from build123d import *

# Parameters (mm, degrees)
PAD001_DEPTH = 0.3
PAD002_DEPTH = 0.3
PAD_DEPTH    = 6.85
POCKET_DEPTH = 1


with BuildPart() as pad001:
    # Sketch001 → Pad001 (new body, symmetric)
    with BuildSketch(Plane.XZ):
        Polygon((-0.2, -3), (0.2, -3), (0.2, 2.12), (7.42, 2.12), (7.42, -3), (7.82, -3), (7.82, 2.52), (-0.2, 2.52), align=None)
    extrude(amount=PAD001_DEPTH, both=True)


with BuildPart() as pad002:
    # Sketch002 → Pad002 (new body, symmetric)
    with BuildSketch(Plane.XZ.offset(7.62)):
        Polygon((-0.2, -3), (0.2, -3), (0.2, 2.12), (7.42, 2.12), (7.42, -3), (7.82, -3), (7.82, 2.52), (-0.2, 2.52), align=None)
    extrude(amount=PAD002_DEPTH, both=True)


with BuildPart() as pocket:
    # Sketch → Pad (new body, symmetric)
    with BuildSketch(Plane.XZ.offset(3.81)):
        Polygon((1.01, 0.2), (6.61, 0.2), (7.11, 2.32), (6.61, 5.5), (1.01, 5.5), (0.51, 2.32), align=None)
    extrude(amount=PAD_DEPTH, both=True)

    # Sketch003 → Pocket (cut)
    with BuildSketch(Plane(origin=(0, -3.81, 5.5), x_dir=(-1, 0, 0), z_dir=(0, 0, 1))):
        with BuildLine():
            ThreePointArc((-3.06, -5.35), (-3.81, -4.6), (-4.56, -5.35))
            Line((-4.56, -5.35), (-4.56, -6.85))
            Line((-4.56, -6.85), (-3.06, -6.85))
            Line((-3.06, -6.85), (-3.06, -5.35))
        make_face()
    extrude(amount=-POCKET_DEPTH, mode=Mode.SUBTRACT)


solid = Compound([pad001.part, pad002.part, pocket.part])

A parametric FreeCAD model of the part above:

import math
import FreeCAD as App
import Part
import Sketcher


def add_polygon(sketch, points):
    """Adds a closed chain of lines whose ends are joined by coincident constraints."""
    first, n = sketch.GeometryCount, len(points)
    for a, b in zip(points, points[1:] + points[:1]):
        sketch.addGeometry(Part.LineSegment(App.Vector(*a, 0), App.Vector(*b, 0)), False)
    for i in range(n):
        sketch.addConstraint(Sketcher.Constraint("Coincident", first + i, 2, first + (i + 1) % n, 1))

doc = App.newDocument("Part")
body = doc.addObject("PartDesign::Body", "Body")

# Sketch on XZ plane
sketch1 = doc.addObject("Sketcher::SketchObject", "Sketch")
body.addObject(sketch1)
sketch1.AttachmentSupport = (doc.XZ_Plane, [""])
sketch1.MapMode = "FlatFace"
add_polygon(sketch1, [(-0.2, -3), (0.2, -3), (0.2, 2.12), (7.42, 2.12), (7.42, -3), (7.82, -3), (7.82, 2.52), (-0.2, 2.52)])  # lines 0-7
sketch1.addConstraint([
    Sketcher.Constraint("Horizontal", 0),
    Sketcher.Constraint("Vertical", 1),
    Sketcher.Constraint("Horizontal", 2),
    Sketcher.Constraint("Vertical", 3),
    Sketcher.Constraint("Horizontal", 4),
    Sketcher.Constraint("Vertical", 5),
    Sketcher.Constraint("Horizontal", 6),
    Sketcher.Constraint("Vertical", 7),
    Sketcher.Constraint("Horizontal", 0, 2, 3, 2),
    Sketcher.Constraint("Equal", 0, 4),
    Sketcher.Constraint("DistanceX", 0, 1, 0, 2, 0.4),
    Sketcher.Constraint("DistanceY", 0, 2, -1, 1, 3.0),
    Sketcher.Constraint("DistanceX", 2, 1, 2, 2, 7.22),
    Sketcher.Constraint("DistanceY", 1, 1, 1, 2, 5.12),
    Sketcher.Constraint("DistanceY", 5, 1, 5, 2, 5.52),
    Sketcher.Constraint("DistanceX", -1, 1, 0, 2, 0.2),
])
pad1 = doc.addObject("PartDesign::Pad", "Pad")
body.addObject(pad1)
pad1.Profile = sketch1
pad1.Length = 0.6
pad1.Midplane = True
body2 = doc.addObject("PartDesign::Body", "Body001")

# Sketch on XZ plane
sketch2 = doc.addObject("Sketcher::SketchObject", "Sketch001")
body2.addObject(sketch2)
sketch2.AttachmentSupport = (doc.getObject("XZ_Plane001"), [""])
sketch2.MapMode = "FlatFace"
sketch2.AttachmentOffset = App.Placement(App.Vector(0, 0, 7.62), App.Rotation())
add_polygon(sketch2, [(-0.2, -3), (0.2, -3), (0.2, 2.12), (7.42, 2.12), (7.42, -3), (7.82, -3), (7.82, 2.52), (-0.2, 2.52)])  # lines 0-7
sketch2.addConstraint([
    Sketcher.Constraint("Horizontal", 0),
    Sketcher.Constraint("Vertical", 1),
    Sketcher.Constraint("Horizontal", 2),
    Sketcher.Constraint("Vertical", 3),
    Sketcher.Constraint("Horizontal", 4),
    Sketcher.Constraint("Vertical", 5),
    Sketcher.Constraint("Horizontal", 6),
    Sketcher.Constraint("Vertical", 7),
    Sketcher.Constraint("Horizontal", 0, 2, 3, 2),
    Sketcher.Constraint("Equal", 0, 4),
    Sketcher.Constraint("DistanceX", 0, 1, 0, 2, 0.4),
    Sketcher.Constraint("DistanceY", 0, 2, -1, 1, 3.0),
    Sketcher.Constraint("DistanceX", 2, 1, 2, 2, 7.22),
    Sketcher.Constraint("DistanceY", 1, 1, 1, 2, 5.12),
    Sketcher.Constraint("DistanceY", 5, 1, 5, 2, 5.52),
    Sketcher.Constraint("DistanceX", -1, 1, 0, 2, 0.2),
])
pad2 = doc.addObject("PartDesign::Pad", "Pad001")
body2.addObject(pad2)
pad2.Profile = sketch2
pad2.Length = 0.6
pad2.Midplane = True
body3 = doc.addObject("PartDesign::Body", "Body002")

# Sketch on XZ plane
sketch3 = doc.addObject("Sketcher::SketchObject", "Sketch002")
body3.addObject(sketch3)
sketch3.AttachmentSupport = (doc.getObject("XZ_Plane002"), [""])
sketch3.MapMode = "FlatFace"
sketch3.AttachmentOffset = App.Placement(App.Vector(0, 0, 3.81), App.Rotation())
add_polygon(sketch3, [(1, 0.2), (6.6, 0.2), (7.1, 2.3), (6.6, 5.5), (1, 5.5), (0.5, 2.3)])  # lines 0-5
sketch3.addConstraint([
    Sketcher.Constraint("Horizontal", 0),
    Sketcher.Constraint("Horizontal", 3),
    Sketcher.Constraint("Horizontal", 1, 2, 4, 2),
    Sketcher.Constraint("Vertical", 0, 2, 2, 2),
    Sketcher.Constraint("Vertical", 3, 2, 5, 2),
    Sketcher.Constraint("Equal", 2, 4),
    Sketcher.Constraint("DistanceX", 0, 1, 0, 2, 5.6),
    Sketcher.Constraint("DistanceY", -1, 1, 0, 2, 0.2),
    Sketcher.Constraint("DistanceY", -1, 1, 2, 2, 5.5),
    Sketcher.Constraint("DistanceX", 0, 2, 1, 2, 0.5),
    Sketcher.Constraint("DistanceX", -1, 1, 0, 2, 6.61),
    Sketcher.Constraint("DistanceY", -1, 1, 1, 2, 2.32),
])
pad3 = doc.addObject("PartDesign::Pad", "Pad002")
body3.addObject(pad3)
pad3.Profile = sketch3
pad3.Length = 13.7
pad3.Midplane = True

# Sketch on XY plane
sketch4 = doc.addObject("Sketcher::SketchObject", "Sketch003")
body3.addObject(sketch4)
sketch4.AttachmentSupport = (doc.getObject("XY_Plane002"), [""])
sketch4.MapMode = "FlatFace"
sketch4.AttachmentOffset = App.Placement(App.Vector(0, 0, 5.5), App.Rotation())
sketch4.addGeometry([
    Part.ArcOfCircle(Part.Circle(App.Vector(3.8, 1.5, 0), App.Vector(0, 0, 1), 0.8), math.radians(180), math.radians(360)),
    Part.LineSegment(App.Vector(4.6, 1.5, 0), App.Vector(4.6, 3, 0)),
    Part.LineSegment(App.Vector(4.6, 3, 0), App.Vector(3.1, 3, 0)),
    Part.LineSegment(App.Vector(3.1, 3, 0), App.Vector(3.1, 1.5, 0)),
], False)
sketch4.addConstraint([
    Sketcher.Constraint("Tangent", 0, 2, 1, 1),
    Sketcher.Constraint("Coincident", 1, 2, 2, 1),
    Sketcher.Constraint("Coincident", 2, 2, 3, 1),
    Sketcher.Constraint("Tangent", 3, 2, 0, 1),
    Sketcher.Constraint("Vertical", 1),
    Sketcher.Constraint("Horizontal", 2),
    Sketcher.Constraint("Vertical", 3),
    Sketcher.Constraint("Equal", 2, 1),
    Sketcher.Constraint("Radius", 0, 0.75),
    Sketcher.Constraint("DistanceX", -1, 1, 0, 3, 3.81),
    Sketcher.Constraint("DistanceY", -1, 1, 0, 3, 1.54),
])
pocket1 = doc.addObject("PartDesign::Pocket", "Pocket")
body3.addObject(pocket1)
pocket1.Profile = sketch4
pocket1.Length = 1

doc.recompute()
